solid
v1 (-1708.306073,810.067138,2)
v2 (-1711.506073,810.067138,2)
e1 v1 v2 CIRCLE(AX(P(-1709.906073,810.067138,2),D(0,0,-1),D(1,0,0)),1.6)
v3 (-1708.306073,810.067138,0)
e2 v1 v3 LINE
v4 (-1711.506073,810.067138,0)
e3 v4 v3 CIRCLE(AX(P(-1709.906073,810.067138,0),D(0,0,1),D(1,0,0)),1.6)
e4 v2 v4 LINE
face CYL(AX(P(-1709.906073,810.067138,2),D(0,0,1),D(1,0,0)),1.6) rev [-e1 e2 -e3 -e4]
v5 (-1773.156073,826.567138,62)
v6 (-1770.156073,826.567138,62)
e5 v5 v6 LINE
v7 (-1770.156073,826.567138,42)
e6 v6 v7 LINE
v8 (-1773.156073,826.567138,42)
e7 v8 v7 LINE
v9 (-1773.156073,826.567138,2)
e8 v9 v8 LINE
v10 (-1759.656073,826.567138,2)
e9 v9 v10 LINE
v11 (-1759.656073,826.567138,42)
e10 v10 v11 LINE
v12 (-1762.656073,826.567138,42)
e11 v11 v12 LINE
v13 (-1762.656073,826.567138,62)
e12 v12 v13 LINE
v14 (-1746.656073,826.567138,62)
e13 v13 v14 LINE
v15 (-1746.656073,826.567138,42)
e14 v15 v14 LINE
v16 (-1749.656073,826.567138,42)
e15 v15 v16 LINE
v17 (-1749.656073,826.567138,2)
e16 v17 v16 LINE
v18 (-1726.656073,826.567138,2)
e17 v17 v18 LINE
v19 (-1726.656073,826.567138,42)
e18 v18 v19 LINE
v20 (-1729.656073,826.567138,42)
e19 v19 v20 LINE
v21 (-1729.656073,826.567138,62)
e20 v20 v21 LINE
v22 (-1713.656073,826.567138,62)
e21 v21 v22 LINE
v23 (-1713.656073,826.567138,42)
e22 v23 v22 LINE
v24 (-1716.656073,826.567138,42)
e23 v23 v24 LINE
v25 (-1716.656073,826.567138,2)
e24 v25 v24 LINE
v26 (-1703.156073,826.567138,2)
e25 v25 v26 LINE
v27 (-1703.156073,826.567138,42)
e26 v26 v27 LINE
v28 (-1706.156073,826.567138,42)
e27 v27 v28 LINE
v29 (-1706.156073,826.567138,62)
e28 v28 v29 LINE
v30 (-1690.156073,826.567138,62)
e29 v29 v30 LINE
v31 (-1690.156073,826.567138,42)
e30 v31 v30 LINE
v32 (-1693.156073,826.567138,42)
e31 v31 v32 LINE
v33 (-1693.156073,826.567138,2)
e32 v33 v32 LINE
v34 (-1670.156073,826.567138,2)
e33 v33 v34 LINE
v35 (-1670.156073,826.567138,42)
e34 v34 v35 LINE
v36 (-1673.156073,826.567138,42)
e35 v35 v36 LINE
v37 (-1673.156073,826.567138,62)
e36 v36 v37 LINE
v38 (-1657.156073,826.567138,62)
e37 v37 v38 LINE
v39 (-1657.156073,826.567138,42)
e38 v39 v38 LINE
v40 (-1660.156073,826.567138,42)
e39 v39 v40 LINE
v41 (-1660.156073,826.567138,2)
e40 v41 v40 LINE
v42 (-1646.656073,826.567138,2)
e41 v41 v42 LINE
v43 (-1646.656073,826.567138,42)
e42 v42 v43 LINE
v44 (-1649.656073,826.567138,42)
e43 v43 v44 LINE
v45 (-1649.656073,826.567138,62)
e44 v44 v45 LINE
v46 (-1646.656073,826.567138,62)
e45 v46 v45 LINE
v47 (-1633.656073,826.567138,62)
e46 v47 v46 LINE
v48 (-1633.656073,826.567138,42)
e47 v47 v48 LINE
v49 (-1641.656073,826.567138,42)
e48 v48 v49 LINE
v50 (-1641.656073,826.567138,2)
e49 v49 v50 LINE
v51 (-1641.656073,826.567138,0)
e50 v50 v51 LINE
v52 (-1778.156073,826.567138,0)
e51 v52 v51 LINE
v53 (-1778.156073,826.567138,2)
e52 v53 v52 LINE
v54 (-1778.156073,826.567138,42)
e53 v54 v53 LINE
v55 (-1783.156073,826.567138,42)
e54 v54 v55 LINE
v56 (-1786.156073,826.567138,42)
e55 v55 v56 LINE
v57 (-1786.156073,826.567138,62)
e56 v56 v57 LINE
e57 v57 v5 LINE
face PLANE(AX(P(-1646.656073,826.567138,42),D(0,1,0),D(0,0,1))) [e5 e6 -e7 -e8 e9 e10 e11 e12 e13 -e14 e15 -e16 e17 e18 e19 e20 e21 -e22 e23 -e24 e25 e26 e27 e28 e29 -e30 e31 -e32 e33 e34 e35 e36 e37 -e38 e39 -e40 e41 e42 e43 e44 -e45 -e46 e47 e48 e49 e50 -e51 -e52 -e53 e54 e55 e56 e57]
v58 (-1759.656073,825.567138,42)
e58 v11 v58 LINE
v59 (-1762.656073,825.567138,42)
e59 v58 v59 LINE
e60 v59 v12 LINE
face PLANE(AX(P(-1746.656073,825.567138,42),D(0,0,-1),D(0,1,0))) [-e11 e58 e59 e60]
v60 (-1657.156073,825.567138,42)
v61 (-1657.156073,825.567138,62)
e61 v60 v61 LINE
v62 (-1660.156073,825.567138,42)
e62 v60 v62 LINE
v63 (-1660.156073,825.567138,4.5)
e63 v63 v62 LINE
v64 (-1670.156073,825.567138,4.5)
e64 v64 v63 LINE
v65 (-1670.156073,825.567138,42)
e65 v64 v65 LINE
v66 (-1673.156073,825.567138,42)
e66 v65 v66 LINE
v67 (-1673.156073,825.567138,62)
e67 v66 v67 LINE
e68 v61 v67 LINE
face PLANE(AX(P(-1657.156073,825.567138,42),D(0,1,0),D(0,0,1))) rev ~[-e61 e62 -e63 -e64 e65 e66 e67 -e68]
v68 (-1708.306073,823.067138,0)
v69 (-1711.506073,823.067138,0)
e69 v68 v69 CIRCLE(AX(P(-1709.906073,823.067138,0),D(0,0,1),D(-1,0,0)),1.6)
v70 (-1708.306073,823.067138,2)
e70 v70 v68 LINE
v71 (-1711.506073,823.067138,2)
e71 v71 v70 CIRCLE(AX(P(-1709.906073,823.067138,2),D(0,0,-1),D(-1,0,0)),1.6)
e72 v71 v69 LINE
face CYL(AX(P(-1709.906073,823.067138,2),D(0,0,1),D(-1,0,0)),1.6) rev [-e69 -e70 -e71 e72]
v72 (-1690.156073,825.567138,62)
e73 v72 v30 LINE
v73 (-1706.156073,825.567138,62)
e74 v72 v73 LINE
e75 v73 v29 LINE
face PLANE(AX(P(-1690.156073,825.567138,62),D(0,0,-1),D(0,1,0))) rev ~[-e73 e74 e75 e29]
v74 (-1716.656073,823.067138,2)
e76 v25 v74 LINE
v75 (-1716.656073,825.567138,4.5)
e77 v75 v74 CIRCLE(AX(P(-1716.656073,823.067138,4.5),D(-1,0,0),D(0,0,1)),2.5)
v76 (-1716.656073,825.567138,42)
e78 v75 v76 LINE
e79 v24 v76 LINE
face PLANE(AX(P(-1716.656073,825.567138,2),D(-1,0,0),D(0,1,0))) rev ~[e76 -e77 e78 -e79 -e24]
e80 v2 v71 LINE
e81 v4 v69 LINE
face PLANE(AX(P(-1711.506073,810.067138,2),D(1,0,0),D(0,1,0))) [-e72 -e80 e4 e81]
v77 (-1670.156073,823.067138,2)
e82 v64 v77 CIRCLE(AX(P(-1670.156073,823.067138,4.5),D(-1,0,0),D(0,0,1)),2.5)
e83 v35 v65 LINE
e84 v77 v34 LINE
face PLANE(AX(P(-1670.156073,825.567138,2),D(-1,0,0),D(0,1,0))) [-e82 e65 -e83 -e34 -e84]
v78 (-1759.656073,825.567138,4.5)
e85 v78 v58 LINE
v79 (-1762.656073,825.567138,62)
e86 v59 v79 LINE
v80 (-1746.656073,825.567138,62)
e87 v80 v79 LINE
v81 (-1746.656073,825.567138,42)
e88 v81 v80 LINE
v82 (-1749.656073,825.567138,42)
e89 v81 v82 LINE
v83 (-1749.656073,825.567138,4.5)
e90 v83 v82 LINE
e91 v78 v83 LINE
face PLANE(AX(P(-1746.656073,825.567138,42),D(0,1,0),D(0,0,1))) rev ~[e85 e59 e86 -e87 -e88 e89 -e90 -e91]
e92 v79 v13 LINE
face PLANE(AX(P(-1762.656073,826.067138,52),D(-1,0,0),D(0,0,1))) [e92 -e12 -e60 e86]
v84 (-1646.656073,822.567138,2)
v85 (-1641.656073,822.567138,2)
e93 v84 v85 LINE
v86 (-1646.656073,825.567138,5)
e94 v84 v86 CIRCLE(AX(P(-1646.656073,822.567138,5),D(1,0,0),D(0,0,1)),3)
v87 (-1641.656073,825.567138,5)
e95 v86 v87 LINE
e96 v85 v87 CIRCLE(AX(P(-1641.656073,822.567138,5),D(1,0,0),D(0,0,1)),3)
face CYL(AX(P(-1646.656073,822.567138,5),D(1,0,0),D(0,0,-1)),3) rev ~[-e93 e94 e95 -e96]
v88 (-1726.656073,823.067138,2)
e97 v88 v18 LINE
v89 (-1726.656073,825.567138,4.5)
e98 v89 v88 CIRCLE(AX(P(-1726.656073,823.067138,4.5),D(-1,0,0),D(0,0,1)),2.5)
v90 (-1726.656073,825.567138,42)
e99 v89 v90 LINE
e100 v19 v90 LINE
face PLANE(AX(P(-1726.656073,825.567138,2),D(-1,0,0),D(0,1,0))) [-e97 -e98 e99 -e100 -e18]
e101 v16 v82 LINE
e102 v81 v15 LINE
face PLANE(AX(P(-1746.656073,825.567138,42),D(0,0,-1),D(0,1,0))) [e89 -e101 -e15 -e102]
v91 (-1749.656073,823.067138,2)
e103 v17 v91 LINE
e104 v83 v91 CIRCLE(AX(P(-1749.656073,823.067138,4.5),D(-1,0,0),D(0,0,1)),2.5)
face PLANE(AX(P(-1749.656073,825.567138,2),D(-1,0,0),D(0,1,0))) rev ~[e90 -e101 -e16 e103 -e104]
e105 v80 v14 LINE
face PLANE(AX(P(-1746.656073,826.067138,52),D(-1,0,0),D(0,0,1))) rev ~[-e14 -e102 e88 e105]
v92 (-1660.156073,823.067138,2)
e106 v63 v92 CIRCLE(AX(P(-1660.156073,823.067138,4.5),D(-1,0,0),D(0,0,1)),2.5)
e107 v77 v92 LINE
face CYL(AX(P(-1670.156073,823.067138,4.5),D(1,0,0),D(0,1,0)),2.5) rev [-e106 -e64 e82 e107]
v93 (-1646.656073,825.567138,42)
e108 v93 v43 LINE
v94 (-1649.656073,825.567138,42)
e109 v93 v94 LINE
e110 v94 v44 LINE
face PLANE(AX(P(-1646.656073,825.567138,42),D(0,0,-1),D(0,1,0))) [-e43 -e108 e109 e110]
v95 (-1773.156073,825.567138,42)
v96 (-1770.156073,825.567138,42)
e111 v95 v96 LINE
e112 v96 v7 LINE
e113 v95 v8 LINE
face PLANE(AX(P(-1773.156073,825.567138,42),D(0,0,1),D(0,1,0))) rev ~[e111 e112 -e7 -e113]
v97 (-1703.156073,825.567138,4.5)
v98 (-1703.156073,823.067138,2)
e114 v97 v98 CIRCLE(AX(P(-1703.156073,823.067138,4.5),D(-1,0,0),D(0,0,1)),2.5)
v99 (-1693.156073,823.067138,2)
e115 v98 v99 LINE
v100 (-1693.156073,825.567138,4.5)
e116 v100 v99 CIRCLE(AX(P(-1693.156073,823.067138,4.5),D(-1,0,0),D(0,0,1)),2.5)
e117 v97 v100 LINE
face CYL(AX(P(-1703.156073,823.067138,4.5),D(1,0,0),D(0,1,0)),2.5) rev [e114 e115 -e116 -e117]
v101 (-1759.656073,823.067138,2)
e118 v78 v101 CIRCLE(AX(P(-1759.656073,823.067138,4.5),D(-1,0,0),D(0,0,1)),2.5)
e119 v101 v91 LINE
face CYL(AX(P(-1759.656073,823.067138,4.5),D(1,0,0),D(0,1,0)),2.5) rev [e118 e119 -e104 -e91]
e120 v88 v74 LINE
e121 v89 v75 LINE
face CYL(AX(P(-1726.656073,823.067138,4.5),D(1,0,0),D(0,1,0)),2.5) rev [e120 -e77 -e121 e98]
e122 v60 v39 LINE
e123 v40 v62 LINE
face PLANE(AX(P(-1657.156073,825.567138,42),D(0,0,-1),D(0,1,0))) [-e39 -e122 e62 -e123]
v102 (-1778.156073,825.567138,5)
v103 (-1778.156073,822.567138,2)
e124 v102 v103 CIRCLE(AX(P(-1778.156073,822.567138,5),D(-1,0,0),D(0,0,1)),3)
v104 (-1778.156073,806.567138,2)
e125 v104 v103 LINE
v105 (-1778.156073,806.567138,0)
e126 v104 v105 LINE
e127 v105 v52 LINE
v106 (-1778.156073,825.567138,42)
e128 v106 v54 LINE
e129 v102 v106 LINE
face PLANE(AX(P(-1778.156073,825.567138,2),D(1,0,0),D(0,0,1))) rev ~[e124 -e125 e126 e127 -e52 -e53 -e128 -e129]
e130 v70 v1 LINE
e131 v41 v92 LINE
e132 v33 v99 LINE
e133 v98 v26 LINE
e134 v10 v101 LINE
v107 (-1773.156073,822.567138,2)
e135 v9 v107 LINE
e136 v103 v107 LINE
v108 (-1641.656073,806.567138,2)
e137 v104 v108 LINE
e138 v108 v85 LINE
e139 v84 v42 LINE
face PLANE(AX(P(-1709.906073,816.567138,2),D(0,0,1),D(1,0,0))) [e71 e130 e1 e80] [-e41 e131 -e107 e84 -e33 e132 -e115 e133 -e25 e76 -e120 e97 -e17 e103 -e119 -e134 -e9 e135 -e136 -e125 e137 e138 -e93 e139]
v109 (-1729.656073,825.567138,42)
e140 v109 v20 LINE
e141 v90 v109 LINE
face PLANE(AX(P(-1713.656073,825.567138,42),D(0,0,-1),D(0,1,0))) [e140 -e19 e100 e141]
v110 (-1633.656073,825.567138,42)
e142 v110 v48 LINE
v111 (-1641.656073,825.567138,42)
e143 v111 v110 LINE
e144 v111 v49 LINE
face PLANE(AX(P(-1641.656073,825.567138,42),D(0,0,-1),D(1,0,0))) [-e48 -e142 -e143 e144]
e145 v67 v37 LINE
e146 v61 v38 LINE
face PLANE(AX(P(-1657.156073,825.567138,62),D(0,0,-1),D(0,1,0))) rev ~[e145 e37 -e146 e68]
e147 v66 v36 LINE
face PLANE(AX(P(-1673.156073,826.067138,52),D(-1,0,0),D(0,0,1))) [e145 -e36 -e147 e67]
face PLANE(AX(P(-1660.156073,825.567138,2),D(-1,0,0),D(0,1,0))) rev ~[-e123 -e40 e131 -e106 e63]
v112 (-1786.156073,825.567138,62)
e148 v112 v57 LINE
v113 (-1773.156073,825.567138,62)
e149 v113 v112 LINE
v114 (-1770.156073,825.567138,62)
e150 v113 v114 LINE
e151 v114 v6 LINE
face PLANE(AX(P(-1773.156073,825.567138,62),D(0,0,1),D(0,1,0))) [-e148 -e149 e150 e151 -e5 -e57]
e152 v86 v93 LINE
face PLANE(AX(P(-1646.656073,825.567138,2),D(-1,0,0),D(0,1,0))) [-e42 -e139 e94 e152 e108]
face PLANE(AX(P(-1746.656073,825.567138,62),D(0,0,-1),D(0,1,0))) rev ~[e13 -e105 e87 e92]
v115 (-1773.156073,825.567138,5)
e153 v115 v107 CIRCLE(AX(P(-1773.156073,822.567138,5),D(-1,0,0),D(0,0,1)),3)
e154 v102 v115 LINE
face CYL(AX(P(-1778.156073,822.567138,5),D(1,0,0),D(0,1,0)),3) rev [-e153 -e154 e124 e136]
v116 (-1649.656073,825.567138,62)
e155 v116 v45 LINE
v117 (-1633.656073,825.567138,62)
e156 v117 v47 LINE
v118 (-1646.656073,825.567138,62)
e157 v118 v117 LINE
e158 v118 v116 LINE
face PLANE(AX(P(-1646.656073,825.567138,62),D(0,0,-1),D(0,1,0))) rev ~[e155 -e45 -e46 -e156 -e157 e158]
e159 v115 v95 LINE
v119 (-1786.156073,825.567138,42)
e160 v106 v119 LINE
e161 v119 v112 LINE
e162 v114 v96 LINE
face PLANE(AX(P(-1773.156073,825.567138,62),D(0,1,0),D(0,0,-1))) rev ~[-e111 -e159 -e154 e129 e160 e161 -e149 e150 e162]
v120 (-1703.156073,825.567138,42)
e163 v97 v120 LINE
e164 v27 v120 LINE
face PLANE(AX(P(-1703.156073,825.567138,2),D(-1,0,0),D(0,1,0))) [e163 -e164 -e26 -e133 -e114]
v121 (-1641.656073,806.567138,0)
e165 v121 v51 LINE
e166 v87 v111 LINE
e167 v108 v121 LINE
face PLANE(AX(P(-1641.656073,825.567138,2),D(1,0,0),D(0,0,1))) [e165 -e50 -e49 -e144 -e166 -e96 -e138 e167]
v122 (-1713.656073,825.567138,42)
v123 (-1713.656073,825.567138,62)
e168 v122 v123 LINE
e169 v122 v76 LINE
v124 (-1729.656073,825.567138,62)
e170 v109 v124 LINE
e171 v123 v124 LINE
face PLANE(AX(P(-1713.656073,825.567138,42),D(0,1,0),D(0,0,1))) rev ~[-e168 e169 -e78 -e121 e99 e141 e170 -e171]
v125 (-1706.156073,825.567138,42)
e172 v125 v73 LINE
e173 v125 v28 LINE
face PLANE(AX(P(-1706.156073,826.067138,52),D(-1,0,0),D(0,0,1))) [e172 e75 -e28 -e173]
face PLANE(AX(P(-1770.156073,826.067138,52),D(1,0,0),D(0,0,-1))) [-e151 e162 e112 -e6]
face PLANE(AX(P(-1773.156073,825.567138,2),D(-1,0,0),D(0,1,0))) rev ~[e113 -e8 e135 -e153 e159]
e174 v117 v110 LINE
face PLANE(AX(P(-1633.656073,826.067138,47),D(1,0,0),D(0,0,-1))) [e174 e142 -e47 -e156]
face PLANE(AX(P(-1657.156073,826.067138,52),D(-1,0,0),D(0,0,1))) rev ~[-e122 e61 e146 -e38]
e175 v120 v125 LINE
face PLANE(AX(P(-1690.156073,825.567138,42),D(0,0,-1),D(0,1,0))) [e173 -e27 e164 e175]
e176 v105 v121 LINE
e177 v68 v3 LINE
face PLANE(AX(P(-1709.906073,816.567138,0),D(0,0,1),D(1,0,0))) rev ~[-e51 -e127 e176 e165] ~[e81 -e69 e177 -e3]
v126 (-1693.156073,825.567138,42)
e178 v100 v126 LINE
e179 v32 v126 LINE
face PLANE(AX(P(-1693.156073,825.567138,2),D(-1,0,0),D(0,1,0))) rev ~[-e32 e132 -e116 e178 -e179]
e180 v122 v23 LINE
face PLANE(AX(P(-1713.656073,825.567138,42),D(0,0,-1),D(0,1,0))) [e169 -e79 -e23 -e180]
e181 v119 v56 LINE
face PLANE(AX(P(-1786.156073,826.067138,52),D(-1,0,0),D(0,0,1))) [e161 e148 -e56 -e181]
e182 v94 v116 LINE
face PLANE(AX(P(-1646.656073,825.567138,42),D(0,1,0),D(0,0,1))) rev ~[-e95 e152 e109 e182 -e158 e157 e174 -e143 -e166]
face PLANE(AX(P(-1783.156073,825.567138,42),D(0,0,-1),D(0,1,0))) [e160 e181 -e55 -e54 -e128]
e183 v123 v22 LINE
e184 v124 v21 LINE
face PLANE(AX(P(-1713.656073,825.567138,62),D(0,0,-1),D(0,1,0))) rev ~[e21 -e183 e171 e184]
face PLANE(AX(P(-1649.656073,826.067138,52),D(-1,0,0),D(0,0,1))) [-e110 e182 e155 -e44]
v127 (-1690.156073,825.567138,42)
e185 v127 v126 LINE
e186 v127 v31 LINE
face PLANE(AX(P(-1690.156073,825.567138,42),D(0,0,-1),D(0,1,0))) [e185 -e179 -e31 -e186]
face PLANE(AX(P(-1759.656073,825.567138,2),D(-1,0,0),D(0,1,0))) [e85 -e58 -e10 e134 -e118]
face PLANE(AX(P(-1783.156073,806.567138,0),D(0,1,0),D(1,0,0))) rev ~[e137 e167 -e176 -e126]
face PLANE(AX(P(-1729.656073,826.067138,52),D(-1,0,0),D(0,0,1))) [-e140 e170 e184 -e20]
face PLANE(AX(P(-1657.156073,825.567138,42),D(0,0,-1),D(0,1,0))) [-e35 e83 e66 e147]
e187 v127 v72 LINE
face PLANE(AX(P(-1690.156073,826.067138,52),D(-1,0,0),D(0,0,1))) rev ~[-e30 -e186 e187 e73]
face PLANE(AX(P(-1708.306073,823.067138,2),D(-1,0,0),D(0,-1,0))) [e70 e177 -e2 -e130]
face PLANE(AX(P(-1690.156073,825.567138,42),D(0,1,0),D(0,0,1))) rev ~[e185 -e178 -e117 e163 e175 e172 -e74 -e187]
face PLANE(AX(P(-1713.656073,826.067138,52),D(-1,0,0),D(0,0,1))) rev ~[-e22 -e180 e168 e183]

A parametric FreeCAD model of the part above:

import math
import FreeCAD as App
import Part
import Sketcher

V = App.Vector
Q = App.Units.Quantity


def edges_at(feature, points):
    """Names of the edges that pass closest to the given points."""
    edges = feature.Shape.Edges
    near = lambda p: min(range(len(edges)), key=lambda i: edges[i].distToShape(Part.Vertex(*p))[0])
    return sorted({f"Edge{near(p) + 1}" for p in points})

doc = App.newDocument("Part")
body = doc.addObject("PartDesign::Body", "Body")

# Sketch on XY plane
sketch1 = body.newObject("Sketcher::SketchObject", "Sketch")
sketch1.AttachmentSupport = (doc.getObject("XY_Plane"), [""])
sketch1.MapMode = "FlatFace"
sketch1.addGeometry([
    Part.LineSegment(V(-1783, 827, 0), V(-1783, 807, 0)),
    Part.LineSegment(V(-1783, 807, 0), V(-1637, 807, 0)),
    Part.LineSegment(V(-1637, 807, 0), V(-1637, 827, 0)),
    Part.LineSegment(V(-1637, 827, 0), V(-1783, 827, 0)),
], False)
sketch1.addConstraint([
    Sketcher.Constraint("Coincident", 0, 2, 1, 1),
    Sketcher.Constraint("Coincident", 1, 2, 2, 1),
    Sketcher.Constraint("Coincident", 2, 2, 3, 1),
    Sketcher.Constraint("Coincident", 3, 2, 0, 1),
    Sketcher.Constraint("Vertical", 0),
    Sketcher.Constraint("Horizontal", 1),
    Sketcher.Constraint("Vertical", 2),
    Sketcher.Constraint("Horizontal", 3),
    Sketcher.Constraint("DistanceY", 0, 2, 0, 1, Q("20 mm")),
    Sketcher.Constraint("DistanceX", 1, 1, 1, 2, Q("146.5 mm")),
    Sketcher.Constraint("DistanceY", -1, 1, 0, 2, Q("806.567138 mm")),
    Sketcher.Constraint("DistanceX", 0, 2, -1, 1, Q("1783.156073 mm")),
])
pad1 = body.newObject("PartDesign::Pad", "Pad")
pad1.Profile = sketch1
pad1.Length = 2

# Sketch on XY plane
sketch2 = body.newObject("Sketcher::SketchObject", "Sketch001")
sketch2.AttachmentSupport = (doc.getObject("XY_Plane"), [""])
sketch2.MapMode = "FlatFace"
sketch2.AttachmentOffset = App.Placement(V(0, 0, 2), App.Rotation())
sketch2.addGeometry([
    Part.LineSegment(V(-1783.2, 826.6, 0), V(-1783.2, 825.6, 0)),  # 0
    Part.LineSegment(V(-1783.2, 825.6, 0), V(-1773.2, 825.6, 0)),  # 1
    Part.LineSegment(V(-1773.2, 825.6, 0), V(-1773.2, 826.6, 0)),  # 2
    Part.LineSegment(V(-1773.2, 826.6, 0), V(-1783.2, 826.6, 0)),  # 3
    Part.LineSegment(V(-1759.7, 826.6, 0), V(-1759.7, 825.6, 0)),  # 4
    Part.LineSegment(V(-1759.7, 825.6, 0), V(-1749.7, 825.6, 0)),  # 5
    Part.LineSegment(V(-1749.7, 825.6, 0), V(-1749.7, 826.6, 0)),  # 6
    Part.LineSegment(V(-1749.7, 826.6, 0), V(-1759.7, 826.6, 0)),  # 7
    Part.LineSegment(V(-1646.7, 826.6, 0), V(-1646.7, 825.6, 0)),  # 8
    Part.LineSegment(V(-1646.7, 825.6, 0), V(-1636.7, 825.6, 0)),  # 9
    Part.LineSegment(V(-1636.7, 825.6, 0), V(-1636.7, 826.6, 0)),  # 10
    Part.LineSegment(V(-1636.7, 826.6, 0), V(-1646.7, 826.6, 0)),  # 11
    Part.LineSegment(V(-1670.2, 826.6, 0), V(-1670.2, 825.6, 0)),  # 12
    Part.LineSegment(V(-1670.2, 825.6, 0), V(-1660.2, 825.6, 0)),  # 13
    Part.LineSegment(V(-1660.2, 825.6, 0), V(-1660.2, 826.6, 0)),  # 14
    Part.LineSegment(V(-1660.2, 826.6, 0), V(-1670.2, 826.6, 0)),  # 15
    Part.LineSegment(V(-1726.7, 826.6, 0), V(-1726.7, 825.6, 0)),  # 16
    Part.LineSegment(V(-1726.7, 825.6, 0), V(-1716.7, 825.6, 0)),  # 17
    Part.LineSegment(V(-1716.7, 825.6, 0), V(-1716.7, 826.6, 0)),  # 18
    Part.LineSegment(V(-1716.7, 826.6, 0), V(-1726.7, 826.6, 0)),  # 19
    Part.LineSegment(V(-1703.2, 826.6, 0), V(-1703.2, 825.6, 0)),  # 20
    Part.LineSegment(V(-1703.2, 825.6, 0), V(-1693.2, 825.6, 0)),  # 21
    Part.LineSegment(V(-1693.2, 825.6, 0), V(-1693.2, 826.6, 0)),  # 22
    Part.LineSegment(V(-1693.2, 826.6, 0), V(-1703.2, 826.6, 0)),  # 23
], False)
sketch2.addConstraint([
    Sketcher.Constraint("Coincident", 0, 2, 1, 1),
    Sketcher.Constraint("Coincident", 1, 2, 2, 1),
    Sketcher.Constraint("Coincident", 2, 2, 3, 1),
    Sketcher.Constraint("Coincident", 3, 2, 0, 1),
    Sketcher.Constraint("Coincident", 4, 2, 5, 1),
    Sketcher.Constraint("Coincident", 5, 2, 6, 1),
    Sketcher.Constraint("Coincident", 6, 2, 7, 1),
    Sketcher.Constraint("Coincident", 7, 2, 4, 1),
    Sketcher.Constraint("Coincident", 8, 2, 9, 1),
    Sketcher.Constraint("Coincident", 9, 2, 10, 1),
    Sketcher.Constraint("Coincident", 10, 2, 11, 1),
    Sketcher.Constraint("Coincident", 11, 2, 8, 1),
    Sketcher.Constraint("Coincident", 12, 2, 13, 1),
    Sketcher.Constraint("Coincident", 13, 2, 14, 1),
    Sketcher.Constraint("Coincident", 14, 2, 15, 1),
    Sketcher.Constraint("Coincident", 15, 2, 12, 1),
    Sketcher.Constraint("Coincident", 16, 2, 17, 1),
    Sketcher.Constraint("Coincident", 17, 2, 18, 1),
    Sketcher.Constraint("Coincident", 18, 2, 19, 1),
    Sketcher.Constraint("Coincident", 19, 2, 16, 1),
    Sketcher.Constraint("Coincident", 20, 2, 21, 1),
    Sketcher.Constraint("Coincident", 21, 2, 22, 1),
    Sketcher.Constraint("Coincident", 22, 2, 23, 1),
    Sketcher.Constraint("Coincident", 23, 2, 20, 1),
    Sketcher.Constraint("Vertical", 0),
    Sketcher.Constraint("Horizontal", 1),
    Sketcher.Constraint("Vertical", 2),
    Sketcher.Constraint("Horizontal", 3),
    Sketcher.Constraint("Vertical", 4),
    Sketcher.Constraint("Horizontal", 5),
    Sketcher.Constraint("Vertical", 6),
    Sketcher.Constraint("Horizontal", 7),
    Sketcher.Constraint("Vertical", 8),
    Sketcher.Constraint("Horizontal", 9),
    Sketcher.Constraint("Vertical", 10),
    Sketcher.Constraint("Horizontal", 11),
    Sketcher.Constraint("Vertical", 12),
    Sketcher.Constraint("Horizontal", 13),
    Sketcher.Constraint("Vertical", 14),
    Sketcher.Constraint("Horizontal", 15),
    Sketcher.Constraint("Vertical", 16),
    Sketcher.Constraint("Horizontal", 17),
    Sketcher.Constraint("Vertical", 18),
    Sketcher.Constraint("Horizontal", 19),
    Sketcher.Constraint("Vertical", 20),
    Sketcher.Constraint("Horizontal", 21),
    Sketcher.Constraint("Vertical", 22),
    Sketcher.Constraint("Horizontal", 23),
    Sketcher.Constraint("Horizontal", 1, 2, 4, 2),
    Sketcher.Constraint("Horizontal", 3, 2, 6, 2),
    Sketcher.Constraint("Horizontal", 5, 2, 8, 2),
    Sketcher.Constraint("Horizontal", 7, 2, 10, 2),
    Sketcher.Constraint("Horizontal", 9, 2, 12, 2),
    Sketcher.Constraint("Horizontal", 11, 2, 14, 2),
    Sketcher.Constraint("Horizontal", 13, 2, 16, 2),
    Sketcher.Constraint("Horizontal", 15, 2, 18, 2),
    Sketcher.Constraint("Horizontal", 17, 2, 20, 2),
    Sketcher.Constraint("Horizontal", 19, 2, 22, 2),
    Sketcher.Constraint("Equal", 3, 5),
    Sketcher.Constraint("Equal", 7, 9),
    Sketcher.Constraint("Equal", 11, 13),
    Sketcher.Constraint("Equal", 15, 17),
    Sketcher.Constraint("Equal", 19, 21),
    Sketcher.Constraint("DistanceX", 1, 1, 1, 2, Q("10 mm")),
    Sketcher.Constraint("DistanceY", 0, 2, 0, 1, Q("1 mm")),
    Sketcher.Constraint("DistanceX", 5, 2, 8, 2, Q("103 mm")),
    Sketcher.Constraint("DistanceX", 5, 2, 16, 2, Q("23 mm")),
    Sketcher.Constraint("DistanceX", 20, 2, 12, 2, Q("33 mm")),
    Sketcher.Constraint("DistanceX", 1, 2, 4, 2, Q("13.5 mm")),
    Sketcher.Constraint("DistanceX", 12, 2, 8, 2, Q("23.5 mm")),
    Sketcher.Constraint("DistanceY", -1, 1, 0, 2, Q("825.567138 mm")),
    Sketcher.Constraint("DistanceX", 0, 2, -1, 1, Q("1783.156073 mm")),
])
pad2 = body.newObject("PartDesign::Pad", "Pad001")
pad2.Profile = sketch2
pad2.Length = 60

# Sketch on YZ plane
sketch3 = body.newObject("Sketcher::SketchObject", "Sketch002")
sketch3.AttachmentSupport = (doc.getObject("YZ_Plane"), [""])
sketch3.MapMode = "FlatFace"
sketch3.AttachmentOffset = App.Placement(V(0, 0, -1783.156073), App.Rotation())
sketch3.addGeometry([
    Part.LineSegment(V(826.6, 42, 0), V(825.6, 42, 0)),
    Part.LineSegment(V(825.6, 42, 0), V(825.6, 62, 0)),
    Part.LineSegment(V(825.6, 62, 0), V(826.6, 62, 0)),
    Part.LineSegment(V(826.6, 62, 0), V(826.6, 42, 0)),
], False)
sketch3.addConstraint([
    Sketcher.Constraint("Coincident", 0, 2, 1, 1),
    Sketcher.Constraint("Coincident", 1, 2, 2, 1),
    Sketcher.Constraint("Coincident", 2, 2, 3, 1),
    Sketcher.Constraint("Coincident", 3, 2, 0, 1),
    Sketcher.Constraint("Horizontal", 0),
    Sketcher.Constraint("Vertical", 1),
    Sketcher.Constraint("Horizontal", 2),
    Sketcher.Constraint("Vertical", 3),
    Sketcher.Constraint("DistanceX", 0, 2, 0, 1, Q("1 mm")),
    Sketcher.Constraint("DistanceY", 1, 1, 1, 2, Q("20 mm")),
    Sketcher.Constraint("DistanceY", -1, 1, 0, 2, Q("42 mm")),
    Sketcher.Constraint("DistanceX", -1, 1, 0, 2, Q("825.567138 mm")),
])
pad3 = body.newObject("PartDesign::Pad", "Pad002")
pad3.Profile = sketch3
pad3.Length = 3
pad3.Reversed = True

# Sketch on YZ plane
sketch4 = body.newObject("Sketcher::SketchObject", "Sketch003")
sketch4.AttachmentSupport = (doc.getObject("YZ_Plane"), [""])
sketch4.MapMode = "FlatFace"
sketch4.AttachmentOffset = App.Placement(V(0, 0, -1773.156073), App.Rotation())
sketch4.addGeometry([
    Part.LineSegment(V(826.6, 62, 0), V(825.6, 62, 0)),
    Part.LineSegment(V(825.6, 62, 0), V(825.6, 42, 0)),
    Part.LineSegment(V(825.6, 42, 0), V(826.6, 42, 0)),
    Part.LineSegment(V(826.6, 42, 0), V(826.6, 62, 0)),
], False)
sketch4.addConstraint([
    Sketcher.Constraint("Coincident", 0, 2, 1, 1),
    Sketcher.Constraint("Coincident", 1, 2, 2, 1),
    Sketcher.Constraint("Coincident", 2, 2, 3, 1),
    Sketcher.Constraint("Coincident", 3, 2, 0, 1),
    Sketcher.Constraint("Horizontal", 0),
    Sketcher.Constraint("Vertical", 1),
    Sketcher.Constraint("Horizontal", 2),
    Sketcher.Constraint("Vertical", 3),
    Sketcher.Constraint("DistanceX", 0, 2, 0, 1, Q("1 mm")),
    Sketcher.Constraint("DistanceY", 1, 2, 1, 1, Q("20 mm")),
    Sketcher.Constraint("DistanceY", -1, 1, 0, 2, Q("62 mm")),
    Sketcher.Constraint("DistanceX", -1, 1, 0, 2, Q("825.567138 mm")),
])
pad4 = body.newObject("PartDesign::Pad", "Pad003")
pad4.Profile = sketch4
pad4.Length = 3

# Sketch on YZ plane
sketch5 = body.newObject("Sketcher::SketchObject", "Sketch004")
sketch5.AttachmentSupport = (doc.getObject("YZ_Plane"), [""])
sketch5.MapMode = "FlatFace"
sketch5.AttachmentOffset = App.Placement(V(0, 0, -1759.656073), App.Rotation())
sketch5.addGeometry([
    Part.LineSegment(V(826.6, 42, 0), V(825.6, 42, 0)),
    Part.LineSegment(V(825.6, 42, 0), V(825.6, 62, 0)),
    Part.LineSegment(V(825.6, 62, 0), V(826.6, 62, 0)),
    Part.LineSegment(V(826.6, 62, 0), V(826.6, 42, 0)),
], False)
sketch5.addConstraint([
    Sketcher.Constraint("Coincident", 0, 2, 1, 1),
    Sketcher.Constraint("Coincident", 1, 2, 2, 1),
    Sketcher.Constraint("Coincident", 2, 2, 3, 1),
    Sketcher.Constraint("Coincident", 3, 2, 0, 1),
    Sketcher.Constraint("Horizontal", 0),
    Sketcher.Constraint("Vertical", 1),
    Sketcher.Constraint("Horizontal", 2),
    Sketcher.Constraint("Vertical", 3),
    Sketcher.Constraint("DistanceX", 0, 2, 0, 1, Q("1 mm")),
    Sketcher.Constraint("DistanceY", 1, 1, 1, 2, Q("20 mm")),
    Sketcher.Constraint("DistanceY", -1, 1, 0, 2, Q("42 mm")),
    Sketcher.Constraint("DistanceX", -1, 1, 0, 2, Q("825.567138 mm")),
])
pad5 = body.newObject("PartDesign::Pad", "Pad004")
pad5.Profile = sketch5
pad5.Type = "TwoLengths"
pad5.Length = 3
pad5.Length2 = 13
pad5.Reversed = True

# Sketch on YZ plane
sketch6 = body.newObject("Sketcher::SketchObject", "Sketch005")
sketch6.AttachmentSupport = (doc.getObject("YZ_Plane"), [""])
sketch6.MapMode = "FlatFace"
sketch6.AttachmentOffset = App.Placement(V(0, 0, -1726.656073), App.Rotation())
sketch6.addGeometry([
    Part.LineSegment(V(826.6, 42, 0), V(825.6, 42, 0)),
    Part.LineSegment(V(825.6, 42, 0), V(825.6, 62, 0)),
    Part.LineSegment(V(825.6, 62, 0), V(826.6, 62, 0)),
    Part.LineSegment(V(826.6, 62, 0), V(826.6, 42, 0)),
], False)
sketch6.addConstraint([
    Sketcher.Constraint("Coincident", 0, 2, 1, 1),
    Sketcher.Constraint("Coincident", 1, 2, 2, 1),
    Sketcher.Constraint("Coincident", 2, 2, 3, 1),
    Sketcher.Constraint("Coincident", 3, 2, 0, 1),
    Sketcher.Constraint("Horizontal", 0),
    Sketcher.Constraint("Vertical", 1),
    Sketcher.Constraint("Horizontal", 2),
    Sketcher.Constraint("Vertical", 3),
    Sketcher.Constraint("DistanceX", 0, 2, 0, 1, Q("1 mm")),
    Sketcher.Constraint("DistanceY", 1, 1, 1, 2, Q("20 mm")),
    Sketcher.Constraint("DistanceY", -1, 1, 0, 2, Q("42 mm")),
    Sketcher.Constraint("DistanceX", -1, 1, 0, 2, Q("825.567138 mm")),
])
pad6 = body.newObject("PartDesign::Pad", "Pad005")
pad6.Profile = sketch6
pad6.Type = "TwoLengths"
pad6.Length = 3
pad6.Length2 = 13
pad6.Reversed = True

# Sketch on YZ plane
sketch7 = body.newObject("Sketcher::SketchObject", "Sketch006")
sketch7.AttachmentSupport = (doc.getObject("YZ_Plane"), [""])
sketch7.MapMode = "FlatFace"
sketch7.AttachmentOffset = App.Placement(V(0, 0, -1703.156073), App.Rotation())
sketch7.addGeometry([
    Part.LineSegment(V(826.6, 42, 0), V(825.6, 42, 0)),
    Part.LineSegment(V(825.6, 42, 0), V(825.6, 62, 0)),
    Part.LineSegment(V(825.6, 62, 0), V(826.6, 62, 0)),
    Part.LineSegment(V(826.6, 62, 0), V(826.6, 42, 0)),
], False)
sketch7.addConstraint([
    Sketcher.Constraint("Coincident", 0, 2, 1, 1),
    Sketcher.Constraint("Coincident", 1, 2, 2, 1),
    Sketcher.Constraint("Coincident", 2, 2, 3, 1),
    Sketcher.Constraint("Coincident", 3, 2, 0, 1),
    Sketcher.Constraint("Horizontal", 0),
    Sketcher.Constraint("Vertical", 1),
    Sketcher.Constraint("Horizontal", 2),
    Sketcher.Constraint("Vertical", 3),
    Sketcher.Constraint("DistanceX", 0, 2, 0, 1, Q("1 mm")),
    Sketcher.Constraint("DistanceY", 1, 1, 1, 2, Q("20 mm")),
    Sketcher.Constraint("DistanceY", -1, 1, 0, 2, Q("42 mm")),
    Sketcher.Constraint("DistanceX", -1, 1, 0, 2, Q("825.567138 mm")),
])
pad7 = body.newObject("PartDesign::Pad", "Pad006")
pad7.Profile = sketch7
pad7.Type = "TwoLengths"
pad7.Length = 3
pad7.Length2 = 13
pad7.Reversed = True

# Sketch on YZ plane
sketch8 = body.newObject("Sketcher::SketchObject", "Sketch007")
sketch8.AttachmentSupport = (doc.getObject("YZ_Plane"), [""])
sketch8.MapMode = "FlatFace"
sketch8.AttachmentOffset = App.Placement(V(0, 0, -1670.156073), App.Rotation())
sketch8.addGeometry([
    Part.LineSegment(V(826.6, 42, 0), V(825.6, 42, 0)),
    Part.LineSegment(V(825.6, 42, 0), V(825.6, 62, 0)),
    Part.LineSegment(V(825.6, 62, 0), V(826.6, 62, 0)),
    Part.LineSegment(V(826.6, 62, 0), V(826.6, 42, 0)),
], False)
sketch8.addConstraint([
    Sketcher.Constraint("Coincident", 0, 2, 1, 1),
    Sketcher.Constraint("Coincident", 1, 2, 2, 1),
    Sketcher.Constraint("Coincident", 2, 2, 3, 1),
    Sketcher.Constraint("Coincident", 3, 2, 0, 1),
    Sketcher.Constraint("Horizontal", 0),
    Sketcher.Constraint("Vertical", 1),
    Sketcher.Constraint("Horizontal", 2),
    Sketcher.Constraint("Vertical", 3),
    Sketcher.Constraint("DistanceX", 0, 2, 0, 1, Q("1 mm")),
    Sketcher.Constraint("DistanceY", 1, 1, 1, 2, Q("20 mm")),
    Sketcher.Constraint("DistanceY", -1, 1, 0, 2, Q("42 mm")),
    Sketcher.Constraint("DistanceX", -1, 1, 0, 2, Q("825.567138 mm")),
])
pad8 = body.newObject("PartDesign::Pad", "Pad007")
pad8.Profile = sketch8
pad8.Type = "TwoLengths"
pad8.Length = 3
pad8.Length2 = 13
pad8.Reversed = True

# Sketch on YZ plane
sketch9 = body.newObject("Sketcher::SketchObject", "Sketch008")
sketch9.AttachmentSupport = (doc.getObject("YZ_Plane"), [""])
sketch9.MapMode = "FlatFace"
sketch9.AttachmentOffset = App.Placement(V(0, 0, -1636.656073), App.Rotation())
sketch9.addGeometry([
    Part.LineSegment(V(826.6, 62, 0), V(825.6, 62, 0)),
    Part.LineSegment(V(825.6, 62, 0), V(825.6, 32, 0)),
    Part.LineSegment(V(825.6, 32, 0), V(826.6, 32, 0)),
    Part.LineSegment(V(826.6, 32, 0), V(826.6, 62, 0)),
], False)
sketch9.addConstraint([
    Sketcher.Constraint("Coincident", 0, 2, 1, 1),
    Sketcher.Constraint("Coincident", 1, 2, 2, 1),
    Sketcher.Constraint("Coincident", 2, 2, 3, 1),
    Sketcher.Constraint("Coincident", 3, 2, 0, 1),
    Sketcher.Constraint("Horizontal", 0),
    Sketcher.Constraint("Vertical", 1),
    Sketcher.Constraint("Horizontal", 2),
    Sketcher.Constraint("Vertical", 3),
    Sketcher.Constraint("DistanceX", 0, 2, 0, 1, Q("1 mm")),
    Sketcher.Constraint("DistanceY", 1, 2, 1, 1, Q("30 mm")),
    Sketcher.Constraint("DistanceY", -1, 1, 0, 2, Q("62 mm")),
    Sketcher.Constraint("DistanceX", -1, 1, 0, 2, Q("825.567138 mm")),
])
pad9 = body.newObject("PartDesign::Pad", "Pad008")
pad9.Profile = sketch9
pad9.Length = 3

# Sketch on YZ plane
sketch10 = body.newObject("Sketcher::SketchObject", "Sketch009")
sketch10.AttachmentSupport = (doc.getObject("YZ_Plane"), [""])
sketch10.MapMode = "FlatFace"
sketch10.AttachmentOffset = App.Placement(V(0, 0, -1646.656073), App.Rotation())
sketch10.addGeometry([
    Part.LineSegment(V(826.6, 42, 0), V(825.6, 42, 0)),
    Part.LineSegment(V(825.6, 42, 0), V(825.6, 62, 0)),
    Part.LineSegment(V(825.6, 62, 0), V(826.6, 62, 0)),
    Part.LineSegment(V(826.6, 62, 0), V(826.6, 42, 0)),
], False)
sketch10.addConstraint([
    Sketcher.Constraint("Coincident", 0, 2, 1, 1),
    Sketcher.Constraint("Coincident", 1, 2, 2, 1),
    Sketcher.Constraint("Coincident", 2, 2, 3, 1),
    Sketcher.Constraint("Coincident", 3, 2, 0, 1),
    Sketcher.Constraint("Horizontal", 0),
    Sketcher.Constraint("Vertical", 1),
    Sketcher.Constraint("Horizontal", 2),
    Sketcher.Constraint("Vertical", 3),
    Sketcher.Constraint("DistanceX", 0, 2, 0, 1, Q("1 mm")),
    Sketcher.Constraint("DistanceY", 1, 1, 1, 2, Q("20 mm")),
    Sketcher.Constraint("DistanceY", -1, 1, 0, 2, Q("42 mm")),
    Sketcher.Constraint("DistanceX", -1, 1, 0, 2, Q("825.567138 mm")),
])
pad10 = body.newObject("PartDesign::Pad", "Pad009")
pad10.Profile = sketch10
pad10.Length = 3
pad10.Reversed = True

# Sketch on XY plane
sketch11 = body.newObject("Sketcher::SketchObject", "Sketch010")
sketch11.AttachmentSupport = (doc.getObject("XY_Plane"), [""])
sketch11.MapMode = "FlatFace"
sketch11.AttachmentOffset = App.Placement(V(0, 0, 2), App.Rotation())
sketch11.addGeometry([
    Part.LineSegment(V(-1711.5, 823.1, 0), V(-1711.5, 810.1, 0)),
    Part.ArcOfCircle(Part.Circle(V(-1709.9, 810.1, 0), V(0, 0, 1), 1.6), math.radians(180), math.radians(360)),
    Part.LineSegment(V(-1708.3, 810.1, 0), V(-1708.3, 823.1, 0)),
    Part.ArcOfCircle(Part.Circle(V(-1709.9, 823.1, 0), V(0, 0, 1), 1.6), math.radians(0), math.radians(180)),
], False)
sketch11.addConstraint([
    Sketcher.Constraint("Tangent", 0, 2, 1, 1),
    Sketcher.Constraint("Tangent", 1, 2, 2, 1),
    Sketcher.Constraint("Tangent", 2, 2, 3, 1),
    Sketcher.Constraint("Tangent", 3, 2, 0, 1),
    Sketcher.Constraint("Vertical", 0),
    Sketcher.Constraint("Vertical", 2),
    Sketcher.Constraint("Radius", 1, Q("1.6 mm")),
    Sketcher.Constraint("DistanceY", 0, 2, 0, 1, Q("13 mm")),
    Sketcher.Constraint("DistanceY", -1, 1, 1, 3, Q("810.067138 mm")),
    Sketcher.Constraint("DistanceX", 1, 3, -1, 1, Q("1709.906073 mm")),
])
pocket1 = body.newObject("PartDesign::Pocket", "Pocket")
pocket1.Profile = sketch11
pocket1.Length = 3

# Sketch on XY plane
sketch12 = body.newObject("Sketcher::SketchObject", "Sketch011")
sketch12.AttachmentSupport = (doc.getObject("XY_Plane"), [""])
sketch12.MapMode = "FlatFace"
sketch12.AttachmentOffset = App.Placement(V(0, 0, 2), App.Rotation())
sketch12.addGeometry([
    Part.LineSegment(V(-1783, 827, 0), V(-1783, 807, 0)),  # 0
    Part.LineSegment(V(-1783, 807, 0), V(-1778, 807, 0)),  # 1
    Part.LineSegment(V(-1778, 807, 0), V(-1778, 827, 0)),  # 2
    Part.LineSegment(V(-1778, 827, 0), V(-1783, 827, 0)),  # 3
    Part.LineSegment(V(-1642, 827, 0), V(-1642, 807, 0)),  # 4
    Part.LineSegment(V(-1642, 807, 0), V(-1637, 807, 0)),  # 5
    Part.LineSegment(V(-1637, 807, 0), V(-1637, 827, 0)),  # 6
    Part.LineSegment(V(-1637, 827, 0), V(-1642, 827, 0)),  # 7
], False)
sketch12.addConstraint([
    Sketcher.Constraint("Coincident", 0, 2, 1, 1),
    Sketcher.Constraint("Coincident", 1, 2, 2, 1),
    Sketcher.Constraint("Coincident", 2, 2, 3, 1),
    Sketcher.Constraint("Coincident", 3, 2, 0, 1),
    Sketcher.Constraint("Coincident", 4, 2, 5, 1),
    Sketcher.Constraint("Coincident", 5, 2, 6, 1),
    Sketcher.Constraint("Coincident", 6, 2, 7, 1),
    Sketcher.Constraint("Coincident", 7, 2, 4, 1),
    Sketcher.Constraint("Vertical", 0),
    Sketcher.Constraint("Horizontal", 1),
    Sketcher.Constraint("Vertical", 2),
    Sketcher.Constraint("Horizontal", 3),
    Sketcher.Constraint("Vertical", 4),
    Sketcher.Constraint("Horizontal", 5),
    Sketcher.Constraint("Vertical", 6),
    Sketcher.Constraint("Horizontal", 7),
    Sketcher.Constraint("Horizontal", 1, 2, 4, 2),
    Sketcher.Constraint("Horizontal", 3, 2, 6, 2),
    Sketcher.Constraint("Equal", 3, 5),
    Sketcher.Constraint("DistanceX", 1, 1, 1, 2, Q("5 mm")),
    Sketcher.Constraint("DistanceY", 0, 2, 0, 1, Q("20 mm")),
    Sketcher.Constraint("DistanceX", 1, 2, 4, 2, Q("136.5 mm")),
    Sketcher.Constraint("DistanceY", -1, 1, 0, 2, Q("806.567138 mm")),
    Sketcher.Constraint("DistanceX", 0, 2, -1, 1, Q("1783.156073 mm")),
])
pocket2 = body.newObject("PartDesign::Pocket", "Pocket001")
pocket2.Profile = sketch12
pocket2.Length = 10

# Sketch on XZ plane
sketch13 = body.newObject("Sketcher::SketchObject", "Sketch012")
sketch13.AttachmentSupport = (doc.getObject("XZ_Plane"), [""])
sketch13.MapMode = "FlatFace"
sketch13.AttachmentOffset = App.Placement(V(0, 0, -825.567138), App.Rotation())
sketch13.addGeometry([
    Part.LineSegment(V(-1783, 42, 0), V(-1783, 2, 0)),  # 0
    Part.LineSegment(V(-1783, 2, 0), V(-1778, 2, 0)),  # 1
    Part.LineSegment(V(-1778, 2, 0), V(-1778, 42, 0)),  # 2
    Part.LineSegment(V(-1778, 42, 0), V(-1783, 42, 0)),  # 3
    Part.LineSegment(V(-1642, 42, 0), V(-1642, 2, 0)),  # 4
    Part.LineSegment(V(-1642, 2, 0), V(-1634, 2, 0)),  # 5
    Part.LineSegment(V(-1634, 2, 0), V(-1634, 42, 0)),  # 6
    Part.LineSegment(V(-1634, 42, 0), V(-1642, 42, 0)),  # 7
], False)
sketch13.addConstraint([
    Sketcher.Constraint("Coincident", 0, 2, 1, 1),
    Sketcher.Constraint("Coincident", 1, 2, 2, 1),
    Sketcher.Constraint("Coincident", 2, 2, 3, 1),
    Sketcher.Constraint("Coincident", 3, 2, 0, 1),
    Sketcher.Constraint("Coincident", 4, 2, 5, 1),
    Sketcher.Constraint("Coincident", 5, 2, 6, 1),
    Sketcher.Constraint("Coincident", 6, 2, 7, 1),
    Sketcher.Constraint("Coincident", 7, 2, 4, 1),
    Sketcher.Constraint("Vertical", 0),
    Sketcher.Constraint("Horizontal", 1),
    Sketcher.Constraint("Vertical", 2),
    Sketcher.Constraint("Horizontal", 3),
    Sketcher.Constraint("Vertical", 4),
    Sketcher.Constraint("Horizontal", 5),
    Sketcher.Constraint("Vertical", 6),
    Sketcher.Constraint("Horizontal", 7),
    Sketcher.Constraint("Horizontal", 1, 2, 4, 2),
    Sketcher.Constraint("Horizontal", 3, 2, 6, 2),
    Sketcher.Constraint("DistanceX", 1, 1, 1, 2, Q("5 mm")),
    Sketcher.Constraint("DistanceX", 5, 1, 5, 2, Q("8 mm")),
    Sketcher.Constraint("DistanceY", 0, 2, 0, 1, Q("40 mm")),
    Sketcher.Constraint("DistanceY", -1, 1, 0, 2, Q("2 mm")),
    Sketcher.Constraint("DistanceX", 1, 2, 4, 2, Q("136.5 mm")),
    Sketcher.Constraint("DistanceX", 0, 2, -1, 1, Q("1783.156073 mm")),
])
pocket3 = body.newObject("PartDesign::Pocket", "Pocket002")
pocket3.Profile = sketch13
pocket3.Length = 10
doc.recompute()

fillet = body.newObject("PartDesign::Fillet", "Fillet")
fillet.Base = (pocket3, edges_at(pocket3, [(-1775.656, 825.567, 2), (-1644.156, 825.567, 2)]))
fillet.Radius = 3
doc.recompute()

fillet2 = body.newObject("PartDesign::Fillet", "Fillet001")
fillet2.Base = (fillet, edges_at(fillet, [
    (-1754.656, 825.567, 2),
    (-1665.156, 825.567, 2),
    (-1721.656, 825.567, 2),
    (-1698.156, 825.567, 2),
]))
fillet2.Radius = 2.5

doc.recompute()
